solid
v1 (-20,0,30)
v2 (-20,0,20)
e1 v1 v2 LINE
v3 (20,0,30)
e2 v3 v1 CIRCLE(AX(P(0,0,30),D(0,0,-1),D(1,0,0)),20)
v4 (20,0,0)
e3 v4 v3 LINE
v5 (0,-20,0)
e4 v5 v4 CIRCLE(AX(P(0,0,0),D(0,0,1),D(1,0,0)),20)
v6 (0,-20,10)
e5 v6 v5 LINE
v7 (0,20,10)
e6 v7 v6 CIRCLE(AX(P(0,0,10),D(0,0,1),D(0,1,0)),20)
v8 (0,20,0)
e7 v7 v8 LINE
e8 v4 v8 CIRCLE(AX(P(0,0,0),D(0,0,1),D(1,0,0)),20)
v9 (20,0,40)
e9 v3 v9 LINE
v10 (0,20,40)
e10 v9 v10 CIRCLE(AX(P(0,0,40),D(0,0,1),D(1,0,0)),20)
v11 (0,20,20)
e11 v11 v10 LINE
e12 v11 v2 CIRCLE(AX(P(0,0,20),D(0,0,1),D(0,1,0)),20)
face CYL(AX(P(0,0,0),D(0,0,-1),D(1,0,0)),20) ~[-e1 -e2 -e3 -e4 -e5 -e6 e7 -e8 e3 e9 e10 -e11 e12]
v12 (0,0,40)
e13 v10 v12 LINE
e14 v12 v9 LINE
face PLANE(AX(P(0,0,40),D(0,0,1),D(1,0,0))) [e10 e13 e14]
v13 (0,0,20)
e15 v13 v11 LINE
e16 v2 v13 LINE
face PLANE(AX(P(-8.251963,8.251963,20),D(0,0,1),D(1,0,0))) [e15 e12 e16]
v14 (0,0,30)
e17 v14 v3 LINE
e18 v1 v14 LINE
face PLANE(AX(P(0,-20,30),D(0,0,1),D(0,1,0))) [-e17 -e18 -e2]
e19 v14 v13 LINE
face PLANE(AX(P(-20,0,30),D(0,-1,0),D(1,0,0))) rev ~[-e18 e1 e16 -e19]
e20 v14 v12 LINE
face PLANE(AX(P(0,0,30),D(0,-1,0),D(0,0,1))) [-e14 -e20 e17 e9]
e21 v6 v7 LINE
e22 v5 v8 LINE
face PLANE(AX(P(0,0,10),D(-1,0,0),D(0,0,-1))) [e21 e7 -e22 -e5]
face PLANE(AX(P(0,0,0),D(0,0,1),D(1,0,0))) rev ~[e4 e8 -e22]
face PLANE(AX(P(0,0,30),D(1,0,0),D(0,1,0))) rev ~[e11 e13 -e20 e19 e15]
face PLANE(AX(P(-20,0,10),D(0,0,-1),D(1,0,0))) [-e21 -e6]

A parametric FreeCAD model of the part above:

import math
import FreeCAD as App
import Part
import Sketcher

V = App.Vector


def add_polygon(sketch, points):
    """Adds a closed chain of lines whose ends are joined by coincident constraints."""
    first, n = sketch.GeometryCount, len(points)
    for a, b in zip(points, points[1:] + points[:1]):
        sketch.addGeometry(Part.LineSegment(App.Vector(*a, 0), App.Vector(*b, 0)), False)
    for i in range(n):
        sketch.addConstraint(Sketcher.Constraint("Coincident", first + i, 2, first + (i + 1) % n, 1))

doc = App.newDocument("Part")
params = doc.addObject("Spreadsheet::Sheet", "Params")
for row, (alias, value) in enumerate([
    ("sketch1_diameter", "40 mm"),
    ("pad1_length", "40 mm"),
    ("sketch2_width", "20 mm"),
    ("sketch2_height", "10 mm"),
    ("sketch3_width", "20 mm"),
    ("sketch3_height", "10 mm"),
    ("pocket2_length", "40 mm"),
    ("sketch4_radius", "20 mm"),
    ("pocket3_length", "10 mm"),
], start=1):
    params.set(f"A{row}", alias)
    params.set(f"B{row}", "=" + value)
    params.setAlias(f"B{row}", alias)

body = doc.addObject("PartDesign::Body", "Body")

sketch1 = body.newObject("Sketcher::SketchObject", "Sketch")
sketch1.AttachmentSupport = (doc.getObject("XY_Plane"), [""])
sketch1.MapMode = "FlatFace"
sketch1.addGeometry(Part.Circle(V(0, 0, 0), V(0, 0, 1), 20), False)
sketch1.addConstraint(Sketcher.Constraint("Coincident", 0, 3, -1, 1))
sketch1.addConstraint(Sketcher.Constraint("Diameter", 0, 40.0))
sketch1.setExpression("Constraints[1]", "Params.sketch1_diameter")
pad1 = body.newObject("PartDesign::Pad", "Pad")
pad1.Profile = sketch1
pad1.setExpression("Length", "Params.pad1_length")

sketch2 = body.newObject("Sketcher::SketchObject", "Sketch001")
sketch2.AttachmentSupport = (doc.getObject("XZ_Plane"), [""])
sketch2.MapMode = "FlatFace"
add_polygon(sketch2, [(-20, 0), (-20, 10), (0, 10), (0, 0)])
add_polygon(sketch2, [(-20, 30), (-20, 40), (0, 40), (0, 30)])
sketch2.addConstraint(Sketcher.Constraint("Vertical", 0))
sketch2.addConstraint(Sketcher.Constraint("Horizontal", 1))
sketch2.addConstraint(Sketcher.Constraint("Vertical", 2))
sketch2.addConstraint(Sketcher.Constraint("Horizontal", 3))
sketch2.addConstraint(Sketcher.Constraint("Vertical", 4))
sketch2.addConstraint(Sketcher.Constraint("Horizontal", 5))
sketch2.addConstraint(Sketcher.Constraint("Vertical", 6))
sketch2.addConstraint(Sketcher.Constraint("Horizontal", 7))
sketch2.addConstraint(Sketcher.Constraint("Coincident", 2, 2, -1, 1))
sketch2.addConstraint(Sketcher.Constraint("PointOnObject", 5, 2, -2))
sketch2.addConstraint(Sketcher.Constraint("Vertical", 3, 2, 4, 2))
sketch2.addConstraint(Sketcher.Constraint("Equal", 2, 4))
sketch2.addConstraint(Sketcher.Constraint("DistanceX", 1, 1, 1, 2, 20.0))
sketch2.addConstraint(Sketcher.Constraint("DistanceY", 0, 1, 0, 2, 10.0))
sketch2.addConstraint(Sketcher.Constraint("DistanceY", -1, 1, 4, 2, 40.0))
sketch2.setExpression("Constraints[20]", "Params.sketch2_width")
sketch2.setExpression("Constraints[21]", "Params.sketch2_height")
pocket1 = body.newObject("PartDesign::Pocket", "Pocket")
pocket1.Profile = sketch2
pocket1.Type = "ThroughAll"
pocket1.Midplane = True

sketch3 = body.newObject("Sketcher::SketchObject", "Sketch002")
sketch3.AttachmentSupport = (doc.getObject("YZ_Plane"), [""])
sketch3.MapMode = "FlatFace"
add_polygon(sketch3, [(0, 30), (-20, 30), (-20, 40), (0, 40)])
sketch3.addConstraint(Sketcher.Constraint("Horizontal", 0))
sketch3.addConstraint(Sketcher.Constraint("Vertical", 1))
sketch3.addConstraint(Sketcher.Constraint("Horizontal", 2))
sketch3.addConstraint(Sketcher.Constraint("Vertical", 3))
sketch3.addConstraint(Sketcher.Constraint("PointOnObject", 2, 2, -2))
sketch3.addConstraint(Sketcher.Constraint("DistanceX", 0, 2, 0, 1, 20.0))
sketch3.addConstraint(Sketcher.Constraint("DistanceY", 1, 1, 1, 2, 10.0))
sketch3.addConstraint(Sketcher.Constraint("DistanceY", -1, 1, 0, 2, 30.0))
sketch3.setExpression("Constraints[9]", "Params.sketch3_width")
sketch3.setExpression("Constraints[10]", "Params.sketch3_height")
pocket2 = body.newObject("PartDesign::Pocket", "Pocket001")
pocket2.Profile = sketch3
pocket2.setExpression("Length", "Params.pocket2_length")
pocket2.Reversed = True

sketch4 = body.newObject("Sketcher::SketchObject", "Sketch003")
sketch4.AttachmentSupport = (doc.getObject("XY_Plane"), [""])
sketch4.MapMode = "FlatFace"
sketch4.AttachmentOffset = App.Placement(V(0, 0, 30), App.Rotation())
sketch4.addGeometry(Part.LineSegment(V(-20, 0, 0), V(0, 0, 0)), False)
sketch4.addGeometry(Part.LineSegment(V(0, 0, 0), V(0, 20, 0)), False)
sketch4.addGeometry(Part.ArcOfCircle(Part.Circle(V(0, 0, 0), V(0, 0, 1), 20), math.radians(90), math.radians(180)), False)
sketch4.addConstraint(Sketcher.Constraint("Coincident", 0, 2, 1, 1))
sketch4.addConstraint(Sketcher.Constraint("Coincident", 1, 2, 2, 1))
sketch4.addConstraint(Sketcher.Constraint("Coincident", 2, 2, 0, 1))
sketch4.addConstraint(Sketcher.Constraint("Horizontal", 0))
sketch4.addConstraint(Sketcher.Constraint("Vertical", 1))
sketch4.addConstraint(Sketcher.Constraint("Coincident", 2, 3, -1, 1))
sketch4.addConstraint(Sketcher.Constraint("Coincident", 0, 2, -1, 1))
sketch4.addConstraint(Sketcher.Constraint("Radius", 2, 20.0))
sketch4.setExpression("Constraints[7]", "Params.sketch4_radius")
pocket3 = body.newObject("PartDesign::Pocket", "Pocket002")
pocket3.Profile = sketch4
pocket3.setExpression("Length", "Params.pocket3_length")

doc.recompute()
